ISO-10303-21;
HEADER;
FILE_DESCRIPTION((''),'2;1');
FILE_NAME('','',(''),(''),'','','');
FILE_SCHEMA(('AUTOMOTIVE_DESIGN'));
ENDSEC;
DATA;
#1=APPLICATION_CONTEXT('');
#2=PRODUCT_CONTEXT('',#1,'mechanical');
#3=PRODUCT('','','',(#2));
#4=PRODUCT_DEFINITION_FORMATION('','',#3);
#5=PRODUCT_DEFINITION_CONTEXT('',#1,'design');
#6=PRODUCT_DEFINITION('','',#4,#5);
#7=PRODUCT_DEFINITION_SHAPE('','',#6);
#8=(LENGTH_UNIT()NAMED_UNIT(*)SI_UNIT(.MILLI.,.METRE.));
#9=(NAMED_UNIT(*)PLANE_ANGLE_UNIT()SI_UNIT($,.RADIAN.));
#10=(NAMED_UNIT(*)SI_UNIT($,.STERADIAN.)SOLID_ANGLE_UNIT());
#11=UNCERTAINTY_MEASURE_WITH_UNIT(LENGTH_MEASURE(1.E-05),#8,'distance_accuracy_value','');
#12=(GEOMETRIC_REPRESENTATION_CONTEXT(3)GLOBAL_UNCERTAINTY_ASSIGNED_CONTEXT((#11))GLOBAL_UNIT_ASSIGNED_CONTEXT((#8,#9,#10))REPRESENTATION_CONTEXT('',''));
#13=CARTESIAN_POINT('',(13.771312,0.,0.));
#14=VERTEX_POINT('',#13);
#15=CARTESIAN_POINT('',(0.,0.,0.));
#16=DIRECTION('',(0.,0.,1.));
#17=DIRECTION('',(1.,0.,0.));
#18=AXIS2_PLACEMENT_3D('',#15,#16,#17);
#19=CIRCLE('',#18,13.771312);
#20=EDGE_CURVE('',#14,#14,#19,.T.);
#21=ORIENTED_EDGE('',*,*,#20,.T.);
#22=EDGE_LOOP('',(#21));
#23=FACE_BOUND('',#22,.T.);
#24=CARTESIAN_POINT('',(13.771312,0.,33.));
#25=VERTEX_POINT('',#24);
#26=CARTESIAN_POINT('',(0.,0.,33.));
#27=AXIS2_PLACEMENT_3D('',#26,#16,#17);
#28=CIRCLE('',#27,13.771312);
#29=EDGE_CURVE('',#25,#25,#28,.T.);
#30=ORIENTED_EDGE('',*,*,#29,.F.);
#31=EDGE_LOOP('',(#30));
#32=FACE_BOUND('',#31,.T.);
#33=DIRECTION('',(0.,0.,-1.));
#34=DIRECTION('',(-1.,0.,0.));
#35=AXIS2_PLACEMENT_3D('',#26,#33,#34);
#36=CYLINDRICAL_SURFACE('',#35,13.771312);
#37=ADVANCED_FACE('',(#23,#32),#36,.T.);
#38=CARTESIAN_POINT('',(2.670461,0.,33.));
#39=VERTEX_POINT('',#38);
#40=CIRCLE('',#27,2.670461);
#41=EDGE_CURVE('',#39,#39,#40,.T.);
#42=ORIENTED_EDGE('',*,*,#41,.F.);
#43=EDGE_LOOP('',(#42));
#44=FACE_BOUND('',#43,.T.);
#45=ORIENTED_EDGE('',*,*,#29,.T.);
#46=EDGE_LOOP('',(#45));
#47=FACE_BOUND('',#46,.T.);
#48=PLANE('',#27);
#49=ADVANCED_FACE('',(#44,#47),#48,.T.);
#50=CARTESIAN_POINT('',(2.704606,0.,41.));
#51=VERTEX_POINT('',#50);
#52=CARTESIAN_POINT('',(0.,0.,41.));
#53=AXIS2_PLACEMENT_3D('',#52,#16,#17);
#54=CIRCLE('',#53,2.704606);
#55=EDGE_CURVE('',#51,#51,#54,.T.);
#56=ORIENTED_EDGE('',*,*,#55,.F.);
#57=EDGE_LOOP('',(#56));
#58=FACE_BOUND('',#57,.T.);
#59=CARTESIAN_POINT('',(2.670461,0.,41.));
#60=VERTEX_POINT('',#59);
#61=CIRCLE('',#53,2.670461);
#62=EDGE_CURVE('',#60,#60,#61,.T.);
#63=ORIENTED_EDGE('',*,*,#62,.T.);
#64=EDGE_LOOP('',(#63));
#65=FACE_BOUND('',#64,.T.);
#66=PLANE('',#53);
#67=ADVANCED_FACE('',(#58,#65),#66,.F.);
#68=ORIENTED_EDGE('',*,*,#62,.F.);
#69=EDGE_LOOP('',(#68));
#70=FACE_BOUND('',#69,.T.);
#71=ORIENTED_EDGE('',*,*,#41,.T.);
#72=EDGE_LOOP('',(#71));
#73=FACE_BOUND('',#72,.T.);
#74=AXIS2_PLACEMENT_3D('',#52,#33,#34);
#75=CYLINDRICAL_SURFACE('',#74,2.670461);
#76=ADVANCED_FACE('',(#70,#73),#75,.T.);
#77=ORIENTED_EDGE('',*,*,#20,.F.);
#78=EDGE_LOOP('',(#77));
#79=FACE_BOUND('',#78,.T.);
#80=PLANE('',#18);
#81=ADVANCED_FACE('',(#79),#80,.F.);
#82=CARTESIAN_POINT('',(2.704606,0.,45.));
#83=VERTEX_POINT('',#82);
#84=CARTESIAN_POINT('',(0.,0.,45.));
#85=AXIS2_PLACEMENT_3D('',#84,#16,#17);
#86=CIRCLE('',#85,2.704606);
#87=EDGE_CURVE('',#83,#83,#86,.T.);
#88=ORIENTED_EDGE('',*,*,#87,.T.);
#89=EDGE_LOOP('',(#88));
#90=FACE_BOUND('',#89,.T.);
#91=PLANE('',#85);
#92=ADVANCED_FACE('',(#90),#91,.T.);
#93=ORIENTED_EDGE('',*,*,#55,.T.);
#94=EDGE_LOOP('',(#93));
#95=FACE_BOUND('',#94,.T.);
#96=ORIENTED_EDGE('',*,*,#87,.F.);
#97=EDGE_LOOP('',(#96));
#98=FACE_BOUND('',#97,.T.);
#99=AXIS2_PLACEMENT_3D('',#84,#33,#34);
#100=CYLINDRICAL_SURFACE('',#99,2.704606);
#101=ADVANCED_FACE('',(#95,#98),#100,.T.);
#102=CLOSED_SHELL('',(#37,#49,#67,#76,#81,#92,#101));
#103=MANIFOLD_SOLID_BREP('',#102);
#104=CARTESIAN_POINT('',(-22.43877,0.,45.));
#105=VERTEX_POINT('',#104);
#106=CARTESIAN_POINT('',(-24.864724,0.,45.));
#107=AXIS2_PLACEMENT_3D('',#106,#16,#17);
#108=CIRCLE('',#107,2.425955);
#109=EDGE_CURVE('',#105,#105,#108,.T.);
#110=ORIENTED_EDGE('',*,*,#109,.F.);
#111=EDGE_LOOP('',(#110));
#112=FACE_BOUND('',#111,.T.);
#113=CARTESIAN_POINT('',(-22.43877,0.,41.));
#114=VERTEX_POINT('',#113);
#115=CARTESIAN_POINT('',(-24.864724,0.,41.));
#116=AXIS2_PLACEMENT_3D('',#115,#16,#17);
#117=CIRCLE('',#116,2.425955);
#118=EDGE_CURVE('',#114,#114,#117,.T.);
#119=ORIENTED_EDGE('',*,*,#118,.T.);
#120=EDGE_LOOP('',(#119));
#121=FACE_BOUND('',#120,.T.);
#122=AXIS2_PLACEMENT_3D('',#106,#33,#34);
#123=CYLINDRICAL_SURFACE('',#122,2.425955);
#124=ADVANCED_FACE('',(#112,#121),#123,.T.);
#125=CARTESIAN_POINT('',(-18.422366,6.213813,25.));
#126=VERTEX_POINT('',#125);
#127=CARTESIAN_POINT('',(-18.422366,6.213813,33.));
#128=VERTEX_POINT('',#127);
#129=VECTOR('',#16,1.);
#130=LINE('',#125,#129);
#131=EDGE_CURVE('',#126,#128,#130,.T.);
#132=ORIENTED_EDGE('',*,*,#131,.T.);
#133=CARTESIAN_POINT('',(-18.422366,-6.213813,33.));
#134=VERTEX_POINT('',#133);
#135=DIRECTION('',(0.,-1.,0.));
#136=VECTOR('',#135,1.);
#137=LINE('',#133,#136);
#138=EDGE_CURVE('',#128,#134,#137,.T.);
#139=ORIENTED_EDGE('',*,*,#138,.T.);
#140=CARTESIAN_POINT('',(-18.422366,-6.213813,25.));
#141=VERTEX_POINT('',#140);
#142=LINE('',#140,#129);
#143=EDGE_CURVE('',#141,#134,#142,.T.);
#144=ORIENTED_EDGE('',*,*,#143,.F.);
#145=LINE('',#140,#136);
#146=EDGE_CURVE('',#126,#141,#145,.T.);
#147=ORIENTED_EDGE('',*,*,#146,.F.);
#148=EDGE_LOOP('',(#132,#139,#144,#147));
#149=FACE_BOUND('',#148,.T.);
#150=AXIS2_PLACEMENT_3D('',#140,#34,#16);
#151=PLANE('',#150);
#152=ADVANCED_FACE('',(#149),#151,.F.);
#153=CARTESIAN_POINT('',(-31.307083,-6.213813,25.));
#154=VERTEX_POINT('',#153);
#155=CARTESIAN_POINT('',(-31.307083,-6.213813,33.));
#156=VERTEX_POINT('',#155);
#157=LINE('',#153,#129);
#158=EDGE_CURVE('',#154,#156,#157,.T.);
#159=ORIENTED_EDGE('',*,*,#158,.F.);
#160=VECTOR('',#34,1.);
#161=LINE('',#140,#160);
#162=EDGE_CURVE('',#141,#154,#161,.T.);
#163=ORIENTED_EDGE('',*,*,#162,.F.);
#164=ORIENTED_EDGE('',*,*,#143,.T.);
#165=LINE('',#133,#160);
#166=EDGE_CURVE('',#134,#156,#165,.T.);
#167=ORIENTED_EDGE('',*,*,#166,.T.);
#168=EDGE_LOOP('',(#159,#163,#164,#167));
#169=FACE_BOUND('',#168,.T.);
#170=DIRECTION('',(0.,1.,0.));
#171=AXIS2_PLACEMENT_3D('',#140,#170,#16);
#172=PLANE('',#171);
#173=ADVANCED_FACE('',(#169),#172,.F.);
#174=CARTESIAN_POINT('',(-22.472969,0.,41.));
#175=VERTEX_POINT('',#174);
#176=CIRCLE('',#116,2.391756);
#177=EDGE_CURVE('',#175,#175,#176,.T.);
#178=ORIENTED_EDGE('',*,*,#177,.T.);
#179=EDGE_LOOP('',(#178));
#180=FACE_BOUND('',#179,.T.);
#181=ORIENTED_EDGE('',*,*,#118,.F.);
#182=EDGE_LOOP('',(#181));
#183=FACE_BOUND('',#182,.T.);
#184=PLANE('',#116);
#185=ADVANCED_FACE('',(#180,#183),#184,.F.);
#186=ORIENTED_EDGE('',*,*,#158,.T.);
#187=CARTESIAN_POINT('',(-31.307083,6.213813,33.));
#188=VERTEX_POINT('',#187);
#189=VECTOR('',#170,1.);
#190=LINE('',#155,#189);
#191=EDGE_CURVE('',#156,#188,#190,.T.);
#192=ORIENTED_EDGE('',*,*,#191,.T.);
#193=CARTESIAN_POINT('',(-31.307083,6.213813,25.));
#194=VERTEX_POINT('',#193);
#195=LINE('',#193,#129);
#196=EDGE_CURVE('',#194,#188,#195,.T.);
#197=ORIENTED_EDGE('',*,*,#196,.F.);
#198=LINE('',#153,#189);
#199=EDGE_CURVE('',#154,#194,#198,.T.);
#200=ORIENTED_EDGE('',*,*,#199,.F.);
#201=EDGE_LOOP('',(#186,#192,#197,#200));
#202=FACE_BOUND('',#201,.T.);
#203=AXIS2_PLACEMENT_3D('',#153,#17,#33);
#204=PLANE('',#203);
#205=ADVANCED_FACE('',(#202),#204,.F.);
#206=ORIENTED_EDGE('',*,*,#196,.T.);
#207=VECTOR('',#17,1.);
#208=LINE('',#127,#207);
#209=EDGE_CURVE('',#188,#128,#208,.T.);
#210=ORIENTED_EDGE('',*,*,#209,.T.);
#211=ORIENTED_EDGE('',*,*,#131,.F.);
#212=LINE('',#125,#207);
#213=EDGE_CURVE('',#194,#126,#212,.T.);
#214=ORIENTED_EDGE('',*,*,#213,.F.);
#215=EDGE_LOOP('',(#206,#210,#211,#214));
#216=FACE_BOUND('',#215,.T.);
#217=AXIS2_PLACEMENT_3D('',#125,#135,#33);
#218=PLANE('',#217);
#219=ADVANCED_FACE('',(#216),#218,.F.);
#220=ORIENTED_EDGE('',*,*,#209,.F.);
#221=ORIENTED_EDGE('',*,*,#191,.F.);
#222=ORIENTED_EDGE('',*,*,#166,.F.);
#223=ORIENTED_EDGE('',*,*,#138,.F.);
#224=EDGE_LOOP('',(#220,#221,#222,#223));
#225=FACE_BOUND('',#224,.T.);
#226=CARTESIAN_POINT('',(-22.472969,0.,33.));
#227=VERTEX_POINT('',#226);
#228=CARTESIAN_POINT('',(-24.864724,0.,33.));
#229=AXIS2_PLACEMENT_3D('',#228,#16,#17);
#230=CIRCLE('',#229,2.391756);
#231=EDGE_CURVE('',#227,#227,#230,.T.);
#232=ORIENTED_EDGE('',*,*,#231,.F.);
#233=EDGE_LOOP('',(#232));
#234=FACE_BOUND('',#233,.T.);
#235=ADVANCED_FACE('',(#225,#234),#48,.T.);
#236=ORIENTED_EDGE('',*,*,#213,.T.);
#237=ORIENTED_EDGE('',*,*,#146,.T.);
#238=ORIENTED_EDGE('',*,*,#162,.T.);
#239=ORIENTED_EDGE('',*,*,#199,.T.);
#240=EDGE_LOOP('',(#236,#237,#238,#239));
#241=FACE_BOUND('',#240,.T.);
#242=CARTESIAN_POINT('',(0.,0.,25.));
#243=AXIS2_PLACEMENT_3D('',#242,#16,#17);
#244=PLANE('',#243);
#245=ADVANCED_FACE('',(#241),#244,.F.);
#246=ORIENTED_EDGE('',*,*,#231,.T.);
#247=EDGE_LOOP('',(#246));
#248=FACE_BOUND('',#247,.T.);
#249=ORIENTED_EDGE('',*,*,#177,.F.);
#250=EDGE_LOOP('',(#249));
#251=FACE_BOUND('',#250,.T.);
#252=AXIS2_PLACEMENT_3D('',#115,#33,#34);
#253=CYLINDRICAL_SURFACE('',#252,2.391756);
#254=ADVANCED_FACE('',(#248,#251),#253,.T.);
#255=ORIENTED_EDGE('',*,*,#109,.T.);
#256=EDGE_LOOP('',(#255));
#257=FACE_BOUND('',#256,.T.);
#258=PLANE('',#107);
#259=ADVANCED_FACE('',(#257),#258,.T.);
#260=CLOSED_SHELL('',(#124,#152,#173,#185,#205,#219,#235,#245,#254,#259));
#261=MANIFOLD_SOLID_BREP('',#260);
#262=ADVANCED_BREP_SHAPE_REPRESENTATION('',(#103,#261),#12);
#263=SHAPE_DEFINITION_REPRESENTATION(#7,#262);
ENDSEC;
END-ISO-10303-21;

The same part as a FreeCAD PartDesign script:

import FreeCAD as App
import Part
import Sketcher
from FreeCAD import Vector
Q = App.Units.Quantity


def add_polygon(sketch, points):
    """Adds a closed chain of lines whose ends are joined by coincident constraints."""
    first, n = sketch.GeometryCount, len(points)
    for a, b in zip(points, points[1:] + points[:1]):
        sketch.addGeometry(Part.LineSegment(App.Vector(*a, 0), App.Vector(*b, 0)), False)
    for i in range(n):
        sketch.addConstraint(Sketcher.Constraint("Coincident", first + i, 2, first + (i + 1) % n, 1))

doc = App.newDocument("Part")
body = doc.addObject("PartDesign::Body", "Body")

# Sketch on XY plane
sketch1 = doc.addObject("Sketcher::SketchObject", "Sketch")
body.addObject(sketch1)
sketch1.AttachmentSupport = (doc.XY_Plane, [""])
sketch1.MapMode = "FlatFace"
sketch1.addGeometry(Part.Circle(Vector(0, 0, 0), Vector(0, 0, 1), 14), False)
sketch1.addConstraint([
    Sketcher.Constraint("Coincident", 0, 3, -1, 1),
    Sketcher.Constraint("Diameter", 0, Q("27.542623 mm")),
])
pad1 = doc.addObject("PartDesign::Pad", "Pad")
body.addObject(pad1)
pad1.Profile = sketch1
pad1.Length = 33

# Sketch on XY plane
sketch2 = doc.addObject("Sketcher::SketchObject", "Sketch001")
body.addObject(sketch2)
sketch2.AttachmentSupport = (doc.XY_Plane, [""])
sketch2.MapMode = "FlatFace"
sketch2.AttachmentOffset = App.Placement(Vector(0, 0, 33), App.Rotation())
sketch2.addGeometry(Part.Circle(Vector(0, 0, 0), Vector(0, 0, 1), 2.7), False)
sketch2.addConstraint([
    Sketcher.Constraint("Coincident", 0, 3, -1, 1),
    Sketcher.Constraint("Diameter", 0, Q("5.340921 mm")),
])
pad2 = doc.addObject("PartDesign::Pad", "Pad001")
body.addObject(pad2)
pad2.Profile = sketch2
pad2.Length = 8

# Sketch on XY plane
sketch3 = doc.addObject("Sketcher::SketchObject", "Sketch002")
body.addObject(sketch3)
sketch3.AttachmentSupport = (doc.XY_Plane, [""])
sketch3.MapMode = "FlatFace"
sketch3.AttachmentOffset = App.Placement(Vector(0, 0, 41), App.Rotation())
sketch3.addGeometry(Part.Circle(Vector(0, 0, 0), Vector(0, 0, 1), 2.7), False)
sketch3.addConstraint([
    Sketcher.Constraint("Coincident", 0, 3, -1, 1),
    Sketcher.Constraint("Diameter", 0, Q("5.409212 mm")),
])
pad3 = doc.addObject("PartDesign::Pad", "Pad002")
body.addObject(pad3)
pad3.Profile = sketch3
pad3.Length = 4
body2 = doc.addObject("PartDesign::Body", "Body001")

# Sketch on XY plane
sketch4 = doc.addObject("Sketcher::SketchObject", "Sketch003")
body2.addObject(sketch4)
sketch4.AttachmentSupport = (doc.getObject("XY_Plane001"), [""])
sketch4.MapMode = "FlatFace"
sketch4.AttachmentOffset = App.Placement(Vector(0, 0, 33), App.Rotation())
sketch4.addGeometry(Part.Circle(Vector(-24.9, 0, 0), Vector(0, 0, 1), 2.4), False)
sketch4.addConstraint([
    Sketcher.Constraint("PointOnObject", 0, 3, -1),
    Sketcher.Constraint("Diameter", 0, Q("4.783512 mm")),
    Sketcher.Constraint("DistanceX", 0, 3, -1, 1, Q("24.864724 mm")),
])
pad4 = doc.addObject("PartDesign::Pad", "Pad003")
body2.addObject(pad4)
pad4.Profile = sketch4
pad4.Length = 8

# Sketch on XY plane
sketch5 = doc.addObject("Sketcher::SketchObject", "Sketch004")
body2.addObject(sketch5)
sketch5.AttachmentSupport = (doc.getObject("XY_Plane001"), [""])
sketch5.MapMode = "FlatFace"
sketch5.AttachmentOffset = App.Placement(Vector(0, 0, 33), App.Rotation())
add_polygon(sketch5, [(-18, 6), (-18, -6), (-31, -6), (-31, 6)])  # lines 0-3
sketch5.addConstraint([
    Sketcher.Constraint("Vertical", 0),
    Sketcher.Constraint("Horizontal", 1),
    Sketcher.Constraint("Vertical", 2),
    Sketcher.Constraint("Horizontal", 3),
    Sketcher.Constraint("DistanceX", 1, 2, 1, 1, Q("12.884718 mm")),
    Sketcher.Constraint("DistanceY", 0, 2, 0, 1, Q("12.427625 mm")),
    Sketcher.Constraint("DistanceX", 0, 2, -1, 1, Q("18.422366 mm")),
    Sketcher.Constraint("DistanceY", 0, 2, -1, 1, Q("6.213813 mm")),
])
pad5 = doc.addObject("PartDesign::Pad", "Pad004")
body2.addObject(pad5)
pad5.Profile = sketch5
pad5.Length = 8
pad5.Reversed = True

# Sketch on XY plane
sketch6 = doc.addObject("Sketcher::SketchObject", "Sketch005")
body2.addObject(sketch6)
sketch6.AttachmentSupport = (doc.getObject("XY_Plane001"), [""])
sketch6.MapMode = "FlatFace"
sketch6.AttachmentOffset = App.Placement(Vector(0, 0, 41), App.Rotation())
sketch6.addGeometry(Part.Circle(Vector(-24.9, 0, 0), Vector(0, 0, 1), 2.4), False)
sketch6.addConstraint([
    Sketcher.Constraint("PointOnObject", 0, 3, -1),
    Sketcher.Constraint("Diameter", 0, Q("4.851909 mm")),
    Sketcher.Constraint("DistanceX", 0, 3, -1, 1, Q("24.864724 mm")),
])
pad6 = doc.addObject("PartDesign::Pad", "Pad005")
body2.addObject(pad6)
pad6.Profile = sketch6
pad6.Length = 4

doc.recompute()
